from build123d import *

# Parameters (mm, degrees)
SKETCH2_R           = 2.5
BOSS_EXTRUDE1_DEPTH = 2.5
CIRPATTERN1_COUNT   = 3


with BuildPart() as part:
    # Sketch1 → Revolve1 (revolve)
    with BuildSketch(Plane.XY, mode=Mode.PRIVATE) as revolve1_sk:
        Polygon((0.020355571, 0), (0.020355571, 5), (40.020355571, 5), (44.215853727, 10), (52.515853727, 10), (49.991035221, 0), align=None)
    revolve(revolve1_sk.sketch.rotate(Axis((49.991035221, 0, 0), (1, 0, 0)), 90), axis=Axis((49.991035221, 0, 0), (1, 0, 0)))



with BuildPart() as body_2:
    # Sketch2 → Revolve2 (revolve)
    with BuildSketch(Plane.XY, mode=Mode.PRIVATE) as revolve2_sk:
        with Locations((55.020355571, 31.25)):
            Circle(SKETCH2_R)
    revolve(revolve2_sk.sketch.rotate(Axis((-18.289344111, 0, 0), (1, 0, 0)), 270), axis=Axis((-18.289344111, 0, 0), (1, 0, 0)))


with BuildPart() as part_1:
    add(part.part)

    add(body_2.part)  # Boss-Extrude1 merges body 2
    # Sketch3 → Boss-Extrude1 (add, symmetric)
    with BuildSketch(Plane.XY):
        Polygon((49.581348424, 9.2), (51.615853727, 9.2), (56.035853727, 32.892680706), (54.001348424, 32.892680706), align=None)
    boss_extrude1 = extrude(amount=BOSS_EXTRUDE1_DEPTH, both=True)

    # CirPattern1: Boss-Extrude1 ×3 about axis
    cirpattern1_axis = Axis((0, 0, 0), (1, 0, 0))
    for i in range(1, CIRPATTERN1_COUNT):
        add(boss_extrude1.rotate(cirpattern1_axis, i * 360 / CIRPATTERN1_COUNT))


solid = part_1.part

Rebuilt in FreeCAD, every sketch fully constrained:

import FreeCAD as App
import Part
import Sketcher

V = App.Vector
Q = App.Units.Quantity

doc = App.newDocument("Part")
body = doc.addObject("PartDesign::Body", "Body")

# Sketch on XY plane
sketch1 = doc.addObject("Sketcher::SketchObject", "Sketch")
body.addObject(sketch1)
sketch1.AttachmentSupport = (doc.XY_Plane, [""])
sketch1.MapMode = "FlatFace"
sketch1.addGeometry([
    Part.LineSegment(V(0, 5, 0), V(0, 0, 0)),  # 0
    Part.LineSegment(V(0, 0, 0), V(50, 0, 0)),  # 1
    Part.LineSegment(V(50, 0, 0), V(53, 10, 0)),  # 2
    Part.LineSegment(V(53, 10, 0), V(44, 10, 0)),  # 3
    Part.LineSegment(V(44, 10, 0), V(40, 5, 0)),  # 4
    Part.LineSegment(V(40, 5, 0), V(0, 5, 0)),  # 5
], False)
sketch1.addConstraint([
    Sketcher.Constraint("Coincident", 0, 2, 1, 1),
    Sketcher.Constraint("Coincident", 1, 2, 2, 1),
    Sketcher.Constraint("Coincident", 2, 2, 3, 1),
    Sketcher.Constraint("Coincident", 3, 2, 4, 1),
    Sketcher.Constraint("Coincident", 4, 2, 5, 1),
    Sketcher.Constraint("Coincident", 5, 2, 0, 1),
    Sketcher.Constraint("Vertical", 0),
    Sketcher.Constraint("Horizontal", 1),
    Sketcher.Constraint("Horizontal", 3),
    Sketcher.Constraint("Horizontal", 5),
    Sketcher.Constraint("PointOnObject", 0, 2, -1),
    Sketcher.Constraint("DistanceX", 5, 2, 5, 1, 40.0),
    Sketcher.Constraint("DistanceY", 0, 2, 0, 1, 5.0),
    Sketcher.Constraint("Angle", 4, Q("-130 deg")),
    Sketcher.Constraint("DistanceX", 3, 2, 3, 1, 8.3),
    Sketcher.Constraint("DistanceY", -1, 1, 2, 2, 10.0),
    Sketcher.Constraint("Angle", 2, Q("75.83 deg")),
    Sketcher.Constraint("DistanceX", -1, 1, 0, 2, 0.020356),
])
revolution = doc.addObject("PartDesign::Revolution", "Revolution")
body.addObject(revolution)
revolution.Profile = sketch1
revolution.ReferenceAxis = (sketch1, ["H_Axis"])
revolution.Angle = 360
body2 = doc.addObject("PartDesign::Body", "Body001")

# Sketch on XY plane
sketch2 = doc.addObject("Sketcher::SketchObject", "Sketch001")
body2.addObject(sketch2)
sketch2.AttachmentSupport = (doc.getObject("XY_Plane001"), [""])
sketch2.MapMode = "FlatFace"
sketch2.addGeometry(Part.Circle(V(55, 31.2, 0), V(0, 0, 1), 2.5), False)
sketch2.addConstraint([
    Sketcher.Constraint("Diameter", 0, 5.0),
    Sketcher.Constraint("DistanceY", -1, 1, 0, 3, 31.25),
    Sketcher.Constraint("DistanceX", -1, 1, 0, 3, 55.020356),
])
revolution2 = doc.addObject("PartDesign::Revolution", "Revolution001")
body2.addObject(revolution2)
revolution2.Profile = sketch2
revolution2.ReferenceAxis = (sketch2, ["H_Axis"])
revolution2.Angle = 360
body.AllowCompound = True
doc.recompute()

boolean = doc.addObject("PartDesign::Boolean", "Boolean")
body.addObject(boolean)
boolean.Type = "Fuse"
boolean.addObjects([body2])

# Sketch on XY plane
sketch3 = doc.addObject("Sketcher::SketchObject", "Sketch002")
body.addObject(sketch3)
sketch3.AttachmentSupport = (doc.XY_Plane, [""])
sketch3.MapMode = "FlatFace"
sketch3.addGeometry([
    Part.LineSegment(V(49.6, 9.2, 0), V(51.6, 9.2, 0)),
    Part.LineSegment(V(51.6, 9.2, 0), V(56, 32.9, 0)),
    Part.LineSegment(V(56, 32.9, 0), V(54, 32.9, 0)),
    Part.LineSegment(V(54, 32.9, 0), V(49.6, 9.2, 0)),
], False)
sketch3.addConstraint([
    Sketcher.Constraint("Coincident", 0, 2, 1, 1),
    Sketcher.Constraint("Coincident", 1, 2, 2, 1),
    Sketcher.Constraint("Coincident", 2, 2, 3, 1),
    Sketcher.Constraint("Coincident", 3, 2, 0, 1),
    Sketcher.Constraint("Horizontal", 0),
    Sketcher.Constraint("Horizontal", 2),
    Sketcher.Constraint("Parallel", 1, 3),
    Sketcher.Constraint("DistanceY", -1, 1, 0, 2, 9.2),
    Sketcher.Constraint("DistanceX", 0, 2, 1, 2, 4.42),
    Sketcher.Constraint("DistanceX", 0, 1, 0, 2, 2.034505),
    Sketcher.Constraint("DistanceY", -1, 1, 1, 2, 32.892681),
    Sketcher.Constraint("DistanceX", -1, 1, 2, 2, 54.001348),
])
pad1 = doc.addObject("PartDesign::Pad", "Pad")
body.addObject(pad1)
pad1.Profile = sketch3
pad1.Length = 5
pad1.Midplane = True
doc.recompute()

polarpattern = doc.addObject("PartDesign::PolarPattern", "PolarPattern")
body.addObject(polarpattern)
polarpattern.Originals = [pad1]
polarpattern.Axis = (doc.X_Axis, [""])
polarpattern.Angle = 360
polarpattern.Occurrences = 3
body.Tip = polarpattern

doc.recompute()
